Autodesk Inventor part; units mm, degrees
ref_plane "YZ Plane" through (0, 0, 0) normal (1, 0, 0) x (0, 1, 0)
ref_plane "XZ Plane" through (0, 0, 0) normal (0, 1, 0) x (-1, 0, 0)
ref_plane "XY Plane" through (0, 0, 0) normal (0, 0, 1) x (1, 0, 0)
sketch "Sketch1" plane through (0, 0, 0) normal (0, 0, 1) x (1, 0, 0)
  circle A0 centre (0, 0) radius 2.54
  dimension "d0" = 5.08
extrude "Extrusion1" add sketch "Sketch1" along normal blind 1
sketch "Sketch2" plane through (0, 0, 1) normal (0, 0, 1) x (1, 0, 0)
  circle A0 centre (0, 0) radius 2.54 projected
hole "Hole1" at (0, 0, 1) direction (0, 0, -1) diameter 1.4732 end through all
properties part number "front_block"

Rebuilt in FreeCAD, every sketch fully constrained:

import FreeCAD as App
import Part
import Sketcher
Q = App.Units.Quantity

doc = App.newDocument("Part")
body = doc.addObject("PartDesign::Body", "Body")

# Sketch on XY plane
sketch1 = body.newObject("Sketcher::SketchObject", "Sketch")
sketch1.AttachmentSupport = (doc.getObject("XY_Plane"), [""])
sketch1.MapMode = "FlatFace"
sketch1.addGeometry(Part.Circle(App.Vector(0, 0, 0), App.Vector(0, 0, 1), 2.5), False)
sketch1.addConstraint(Sketcher.Constraint("Coincident", 0, 3, -1, 1))
sketch1.addConstraint(Sketcher.Constraint("Diameter", 0, Q("0.2 in")))
pad1 = body.newObject("PartDesign::Pad", "Pad")
pad1.Profile = sketch1
pad1.Length = 1

# Sketch on XY plane
sketch2 = body.newObject("Sketcher::SketchObject", "Sketch001")
sketch2.AttachmentSupport = (doc.getObject("XY_Plane"), [""])
sketch2.MapMode = "FlatFace"
sketch2.AttachmentOffset = App.Placement(App.Vector(0, 0, 1), App.Rotation())
sketch2.addGeometry(Part.Circle(App.Vector(0, 0, 0), App.Vector(0, 0, 1), 0.7), False)
sketch2.addConstraint(Sketcher.Constraint("Coincident", 0, 3, -1, 1))
sketch2.addConstraint(Sketcher.Constraint("Diameter", 0, Q("0.058 in")))
doc.recompute()
hole = body.newObject("PartDesign::Hole", "Hole")
hole.Profile = sketch2
hole.ThreadType = "None"
hole.Diameter = Q("0.058 in")
hole.DepthType = "ThroughAll"

doc.recompute()
